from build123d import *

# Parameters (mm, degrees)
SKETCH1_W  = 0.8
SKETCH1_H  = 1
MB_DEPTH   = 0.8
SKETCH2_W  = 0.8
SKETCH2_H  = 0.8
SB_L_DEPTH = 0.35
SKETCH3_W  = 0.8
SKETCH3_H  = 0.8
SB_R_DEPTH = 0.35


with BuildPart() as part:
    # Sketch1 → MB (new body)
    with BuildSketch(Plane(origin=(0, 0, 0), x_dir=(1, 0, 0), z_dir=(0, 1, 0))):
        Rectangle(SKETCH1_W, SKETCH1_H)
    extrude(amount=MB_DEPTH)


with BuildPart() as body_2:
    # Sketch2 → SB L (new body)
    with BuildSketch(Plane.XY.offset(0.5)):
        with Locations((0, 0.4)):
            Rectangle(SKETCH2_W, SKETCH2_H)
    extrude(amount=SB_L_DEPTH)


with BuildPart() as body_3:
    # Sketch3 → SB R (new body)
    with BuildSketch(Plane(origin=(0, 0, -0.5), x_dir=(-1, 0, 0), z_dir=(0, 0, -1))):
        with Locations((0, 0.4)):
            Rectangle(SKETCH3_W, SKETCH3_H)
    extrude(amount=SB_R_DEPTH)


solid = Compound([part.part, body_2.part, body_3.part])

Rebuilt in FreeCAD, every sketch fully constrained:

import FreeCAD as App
import Part
import Sketcher

V = App.Vector
Q = App.Units.Quantity

doc = App.newDocument("Part")
params = doc.addObject("Spreadsheet::Sheet", "Params")
for row, (alias, value) in enumerate([
    ("sketch1_height", "1 mm"),
    ("sketch1_width", "0.8 mm"),
    ("pad1_length", "0.8 mm"),
    ("sketch2_width", "0.8 mm"),
    ("pad2_length", "0.35 mm"),
    ("sketch3_width", "0.8 mm"),
    ("pad3_length", "0.35 mm"),
], start=1):
    params.set(f"A{row}", alias)
    params.set(f"B{row}", "=" + value)
    params.setAlias(f"B{row}", alias)

body = doc.addObject("PartDesign::Body", "Body")

sketch1 = body.newObject("Sketcher::SketchObject", "Sketch")
sketch1.AttachmentSupport = (doc.getObject("XZ_Plane"), [""])
sketch1.MapMode = "FlatFace"
sketch1.addGeometry(Part.LineSegment(V(-0.4, -0.5, 0), V(-0.4, 0.5, 0)), False)
sketch1.addGeometry(Part.LineSegment(V(-0.4, 0.5, 0), V(0.4, 0.5, 0)), False)
sketch1.addGeometry(Part.LineSegment(V(0.4, 0.5, 0), V(0.4, -0.5, 0)), False)
sketch1.addGeometry(Part.LineSegment(V(0.4, -0.5, 0), V(-0.4, -0.5, 0)), False)
sketch1.addConstraint(Sketcher.Constraint("Coincident", 0, 2, 1, 1))
sketch1.addConstraint(Sketcher.Constraint("Coincident", 1, 2, 2, 1))
sketch1.addConstraint(Sketcher.Constraint("Coincident", 2, 2, 3, 1))
sketch1.addConstraint(Sketcher.Constraint("Coincident", 3, 2, 0, 1))
sketch1.addConstraint(Sketcher.Constraint("Vertical", 0))
sketch1.addConstraint(Sketcher.Constraint("Horizontal", 1))
sketch1.addConstraint(Sketcher.Constraint("Vertical", 2))
sketch1.addConstraint(Sketcher.Constraint("Horizontal", 3))
sketch1.addConstraint(Sketcher.Constraint("Symmetric", 0, 2, 2, 2, -1, 1))
sketch1.addConstraint(Sketcher.Constraint("DistanceY", 0, 1, 0, 2, Q("1 mm")))
sketch1.addConstraint(Sketcher.Constraint("DistanceX", 1, 1, 1, 2, Q("0.8 mm")))
sketch1.setExpression("Constraints[9]", "Params.sketch1_height")
sketch1.setExpression("Constraints[10]", "Params.sketch1_width")
pad1 = body.newObject("PartDesign::Pad", "Pad")
pad1.Profile = sketch1
pad1.setExpression("Length", "Params.pad1_length")
pad1.Reversed = True
body2 = doc.addObject("PartDesign::Body", "Body001")

sketch2 = body2.newObject("Sketcher::SketchObject", "Sketch001")
sketch2.AttachmentSupport = (doc.getObject("XY_Plane001"), [""])
sketch2.MapMode = "FlatFace"
sketch2.AttachmentOffset = App.Placement(V(0, 0, 0.5), App.Rotation())
sketch2.addGeometry(Part.LineSegment(V(-0.4, 0.8, 0), V(-0.4, 0, 0)), False)
sketch2.addGeometry(Part.LineSegment(V(-0.4, 0, 0), V(0.4, 0, 0)), False)
sketch2.addGeometry(Part.LineSegment(V(0.4, 0, 0), V(0.4, 0.8, 0)), False)
sketch2.addGeometry(Part.LineSegment(V(0.4, 0.8, 0), V(-0.4, 0.8, 0)), False)
sketch2.addConstraint(Sketcher.Constraint("Coincident", 0, 2, 1, 1))
sketch2.addConstraint(Sketcher.Constraint("Coincident", 1, 2, 2, 1))
sketch2.addConstraint(Sketcher.Constraint("Coincident", 2, 2, 3, 1))
sketch2.addConstraint(Sketcher.Constraint("Coincident", 3, 2, 0, 1))
sketch2.addConstraint(Sketcher.Constraint("Vertical", 0))
sketch2.addConstraint(Sketcher.Constraint("Horizontal", 1))
sketch2.addConstraint(Sketcher.Constraint("Vertical", 2))
sketch2.addConstraint(Sketcher.Constraint("Horizontal", 3))
sketch2.addConstraint(Sketcher.Constraint("Symmetric", 0, 2, 1, 2, -1, 1))
sketch2.addConstraint(Sketcher.Constraint("Equal", 3, 0))
sketch2.addConstraint(Sketcher.Constraint("DistanceX", 1, 1, 1, 2, Q("0.8 mm")))
sketch2.setExpression("Constraints[10]", "Params.sketch2_width")
pad2 = body2.newObject("PartDesign::Pad", "Pad001")
pad2.Profile = sketch2
pad2.setExpression("Length", "Params.pad2_length")
body3 = doc.addObject("PartDesign::Body", "Body002")

sketch3 = body3.newObject("Sketcher::SketchObject", "Sketch002")
sketch3.AttachmentSupport = (doc.getObject("XY_Plane002"), [""])
sketch3.MapMode = "FlatFace"
sketch3.AttachmentOffset = App.Placement(V(0, 0, -0.5), App.Rotation())
sketch3.addGeometry(Part.LineSegment(V(0.4, 0.8, 0), V(0.4, 0, 0)), False)
sketch3.addGeometry(Part.LineSegment(V(0.4, 0, 0), V(-0.4, 0, 0)), False)
sketch3.addGeometry(Part.LineSegment(V(-0.4, 0, 0), V(-0.4, 0.8, 0)), False)
sketch3.addGeometry(Part.LineSegment(V(-0.4, 0.8, 0), V(0.4, 0.8, 0)), False)
sketch3.addConstraint(Sketcher.Constraint("Coincident", 0, 2, 1, 1))
sketch3.addConstraint(Sketcher.Constraint("Coincident", 1, 2, 2, 1))
sketch3.addConstraint(Sketcher.Constraint("Coincident", 2, 2, 3, 1))
sketch3.addConstraint(Sketcher.Constraint("Coincident", 3, 2, 0, 1))
sketch3.addConstraint(Sketcher.Constraint("Vertical", 0))
sketch3.addConstraint(Sketcher.Constraint("Horizontal", 1))
sketch3.addConstraint(Sketcher.Constraint("Vertical", 2))
sketch3.addConstraint(Sketcher.Constraint("Horizontal", 3))
sketch3.addConstraint(Sketcher.Constraint("Symmetric", 0, 2, 1, 2, -1, 1))
sketch3.addConstraint(Sketcher.Constraint("Equal", 3, 0))
sketch3.addConstraint(Sketcher.Constraint("DistanceX", 1, 2, 1, 1, Q("0.8 mm")))
sketch3.setExpression("Constraints[10]", "Params.sketch3_width")
pad3 = body3.newObject("PartDesign::Pad", "Pad002")
pad3.Profile = sketch3
pad3.setExpression("Length", "Params.pad3_length")
pad3.Reversed = True

doc.recompute()
